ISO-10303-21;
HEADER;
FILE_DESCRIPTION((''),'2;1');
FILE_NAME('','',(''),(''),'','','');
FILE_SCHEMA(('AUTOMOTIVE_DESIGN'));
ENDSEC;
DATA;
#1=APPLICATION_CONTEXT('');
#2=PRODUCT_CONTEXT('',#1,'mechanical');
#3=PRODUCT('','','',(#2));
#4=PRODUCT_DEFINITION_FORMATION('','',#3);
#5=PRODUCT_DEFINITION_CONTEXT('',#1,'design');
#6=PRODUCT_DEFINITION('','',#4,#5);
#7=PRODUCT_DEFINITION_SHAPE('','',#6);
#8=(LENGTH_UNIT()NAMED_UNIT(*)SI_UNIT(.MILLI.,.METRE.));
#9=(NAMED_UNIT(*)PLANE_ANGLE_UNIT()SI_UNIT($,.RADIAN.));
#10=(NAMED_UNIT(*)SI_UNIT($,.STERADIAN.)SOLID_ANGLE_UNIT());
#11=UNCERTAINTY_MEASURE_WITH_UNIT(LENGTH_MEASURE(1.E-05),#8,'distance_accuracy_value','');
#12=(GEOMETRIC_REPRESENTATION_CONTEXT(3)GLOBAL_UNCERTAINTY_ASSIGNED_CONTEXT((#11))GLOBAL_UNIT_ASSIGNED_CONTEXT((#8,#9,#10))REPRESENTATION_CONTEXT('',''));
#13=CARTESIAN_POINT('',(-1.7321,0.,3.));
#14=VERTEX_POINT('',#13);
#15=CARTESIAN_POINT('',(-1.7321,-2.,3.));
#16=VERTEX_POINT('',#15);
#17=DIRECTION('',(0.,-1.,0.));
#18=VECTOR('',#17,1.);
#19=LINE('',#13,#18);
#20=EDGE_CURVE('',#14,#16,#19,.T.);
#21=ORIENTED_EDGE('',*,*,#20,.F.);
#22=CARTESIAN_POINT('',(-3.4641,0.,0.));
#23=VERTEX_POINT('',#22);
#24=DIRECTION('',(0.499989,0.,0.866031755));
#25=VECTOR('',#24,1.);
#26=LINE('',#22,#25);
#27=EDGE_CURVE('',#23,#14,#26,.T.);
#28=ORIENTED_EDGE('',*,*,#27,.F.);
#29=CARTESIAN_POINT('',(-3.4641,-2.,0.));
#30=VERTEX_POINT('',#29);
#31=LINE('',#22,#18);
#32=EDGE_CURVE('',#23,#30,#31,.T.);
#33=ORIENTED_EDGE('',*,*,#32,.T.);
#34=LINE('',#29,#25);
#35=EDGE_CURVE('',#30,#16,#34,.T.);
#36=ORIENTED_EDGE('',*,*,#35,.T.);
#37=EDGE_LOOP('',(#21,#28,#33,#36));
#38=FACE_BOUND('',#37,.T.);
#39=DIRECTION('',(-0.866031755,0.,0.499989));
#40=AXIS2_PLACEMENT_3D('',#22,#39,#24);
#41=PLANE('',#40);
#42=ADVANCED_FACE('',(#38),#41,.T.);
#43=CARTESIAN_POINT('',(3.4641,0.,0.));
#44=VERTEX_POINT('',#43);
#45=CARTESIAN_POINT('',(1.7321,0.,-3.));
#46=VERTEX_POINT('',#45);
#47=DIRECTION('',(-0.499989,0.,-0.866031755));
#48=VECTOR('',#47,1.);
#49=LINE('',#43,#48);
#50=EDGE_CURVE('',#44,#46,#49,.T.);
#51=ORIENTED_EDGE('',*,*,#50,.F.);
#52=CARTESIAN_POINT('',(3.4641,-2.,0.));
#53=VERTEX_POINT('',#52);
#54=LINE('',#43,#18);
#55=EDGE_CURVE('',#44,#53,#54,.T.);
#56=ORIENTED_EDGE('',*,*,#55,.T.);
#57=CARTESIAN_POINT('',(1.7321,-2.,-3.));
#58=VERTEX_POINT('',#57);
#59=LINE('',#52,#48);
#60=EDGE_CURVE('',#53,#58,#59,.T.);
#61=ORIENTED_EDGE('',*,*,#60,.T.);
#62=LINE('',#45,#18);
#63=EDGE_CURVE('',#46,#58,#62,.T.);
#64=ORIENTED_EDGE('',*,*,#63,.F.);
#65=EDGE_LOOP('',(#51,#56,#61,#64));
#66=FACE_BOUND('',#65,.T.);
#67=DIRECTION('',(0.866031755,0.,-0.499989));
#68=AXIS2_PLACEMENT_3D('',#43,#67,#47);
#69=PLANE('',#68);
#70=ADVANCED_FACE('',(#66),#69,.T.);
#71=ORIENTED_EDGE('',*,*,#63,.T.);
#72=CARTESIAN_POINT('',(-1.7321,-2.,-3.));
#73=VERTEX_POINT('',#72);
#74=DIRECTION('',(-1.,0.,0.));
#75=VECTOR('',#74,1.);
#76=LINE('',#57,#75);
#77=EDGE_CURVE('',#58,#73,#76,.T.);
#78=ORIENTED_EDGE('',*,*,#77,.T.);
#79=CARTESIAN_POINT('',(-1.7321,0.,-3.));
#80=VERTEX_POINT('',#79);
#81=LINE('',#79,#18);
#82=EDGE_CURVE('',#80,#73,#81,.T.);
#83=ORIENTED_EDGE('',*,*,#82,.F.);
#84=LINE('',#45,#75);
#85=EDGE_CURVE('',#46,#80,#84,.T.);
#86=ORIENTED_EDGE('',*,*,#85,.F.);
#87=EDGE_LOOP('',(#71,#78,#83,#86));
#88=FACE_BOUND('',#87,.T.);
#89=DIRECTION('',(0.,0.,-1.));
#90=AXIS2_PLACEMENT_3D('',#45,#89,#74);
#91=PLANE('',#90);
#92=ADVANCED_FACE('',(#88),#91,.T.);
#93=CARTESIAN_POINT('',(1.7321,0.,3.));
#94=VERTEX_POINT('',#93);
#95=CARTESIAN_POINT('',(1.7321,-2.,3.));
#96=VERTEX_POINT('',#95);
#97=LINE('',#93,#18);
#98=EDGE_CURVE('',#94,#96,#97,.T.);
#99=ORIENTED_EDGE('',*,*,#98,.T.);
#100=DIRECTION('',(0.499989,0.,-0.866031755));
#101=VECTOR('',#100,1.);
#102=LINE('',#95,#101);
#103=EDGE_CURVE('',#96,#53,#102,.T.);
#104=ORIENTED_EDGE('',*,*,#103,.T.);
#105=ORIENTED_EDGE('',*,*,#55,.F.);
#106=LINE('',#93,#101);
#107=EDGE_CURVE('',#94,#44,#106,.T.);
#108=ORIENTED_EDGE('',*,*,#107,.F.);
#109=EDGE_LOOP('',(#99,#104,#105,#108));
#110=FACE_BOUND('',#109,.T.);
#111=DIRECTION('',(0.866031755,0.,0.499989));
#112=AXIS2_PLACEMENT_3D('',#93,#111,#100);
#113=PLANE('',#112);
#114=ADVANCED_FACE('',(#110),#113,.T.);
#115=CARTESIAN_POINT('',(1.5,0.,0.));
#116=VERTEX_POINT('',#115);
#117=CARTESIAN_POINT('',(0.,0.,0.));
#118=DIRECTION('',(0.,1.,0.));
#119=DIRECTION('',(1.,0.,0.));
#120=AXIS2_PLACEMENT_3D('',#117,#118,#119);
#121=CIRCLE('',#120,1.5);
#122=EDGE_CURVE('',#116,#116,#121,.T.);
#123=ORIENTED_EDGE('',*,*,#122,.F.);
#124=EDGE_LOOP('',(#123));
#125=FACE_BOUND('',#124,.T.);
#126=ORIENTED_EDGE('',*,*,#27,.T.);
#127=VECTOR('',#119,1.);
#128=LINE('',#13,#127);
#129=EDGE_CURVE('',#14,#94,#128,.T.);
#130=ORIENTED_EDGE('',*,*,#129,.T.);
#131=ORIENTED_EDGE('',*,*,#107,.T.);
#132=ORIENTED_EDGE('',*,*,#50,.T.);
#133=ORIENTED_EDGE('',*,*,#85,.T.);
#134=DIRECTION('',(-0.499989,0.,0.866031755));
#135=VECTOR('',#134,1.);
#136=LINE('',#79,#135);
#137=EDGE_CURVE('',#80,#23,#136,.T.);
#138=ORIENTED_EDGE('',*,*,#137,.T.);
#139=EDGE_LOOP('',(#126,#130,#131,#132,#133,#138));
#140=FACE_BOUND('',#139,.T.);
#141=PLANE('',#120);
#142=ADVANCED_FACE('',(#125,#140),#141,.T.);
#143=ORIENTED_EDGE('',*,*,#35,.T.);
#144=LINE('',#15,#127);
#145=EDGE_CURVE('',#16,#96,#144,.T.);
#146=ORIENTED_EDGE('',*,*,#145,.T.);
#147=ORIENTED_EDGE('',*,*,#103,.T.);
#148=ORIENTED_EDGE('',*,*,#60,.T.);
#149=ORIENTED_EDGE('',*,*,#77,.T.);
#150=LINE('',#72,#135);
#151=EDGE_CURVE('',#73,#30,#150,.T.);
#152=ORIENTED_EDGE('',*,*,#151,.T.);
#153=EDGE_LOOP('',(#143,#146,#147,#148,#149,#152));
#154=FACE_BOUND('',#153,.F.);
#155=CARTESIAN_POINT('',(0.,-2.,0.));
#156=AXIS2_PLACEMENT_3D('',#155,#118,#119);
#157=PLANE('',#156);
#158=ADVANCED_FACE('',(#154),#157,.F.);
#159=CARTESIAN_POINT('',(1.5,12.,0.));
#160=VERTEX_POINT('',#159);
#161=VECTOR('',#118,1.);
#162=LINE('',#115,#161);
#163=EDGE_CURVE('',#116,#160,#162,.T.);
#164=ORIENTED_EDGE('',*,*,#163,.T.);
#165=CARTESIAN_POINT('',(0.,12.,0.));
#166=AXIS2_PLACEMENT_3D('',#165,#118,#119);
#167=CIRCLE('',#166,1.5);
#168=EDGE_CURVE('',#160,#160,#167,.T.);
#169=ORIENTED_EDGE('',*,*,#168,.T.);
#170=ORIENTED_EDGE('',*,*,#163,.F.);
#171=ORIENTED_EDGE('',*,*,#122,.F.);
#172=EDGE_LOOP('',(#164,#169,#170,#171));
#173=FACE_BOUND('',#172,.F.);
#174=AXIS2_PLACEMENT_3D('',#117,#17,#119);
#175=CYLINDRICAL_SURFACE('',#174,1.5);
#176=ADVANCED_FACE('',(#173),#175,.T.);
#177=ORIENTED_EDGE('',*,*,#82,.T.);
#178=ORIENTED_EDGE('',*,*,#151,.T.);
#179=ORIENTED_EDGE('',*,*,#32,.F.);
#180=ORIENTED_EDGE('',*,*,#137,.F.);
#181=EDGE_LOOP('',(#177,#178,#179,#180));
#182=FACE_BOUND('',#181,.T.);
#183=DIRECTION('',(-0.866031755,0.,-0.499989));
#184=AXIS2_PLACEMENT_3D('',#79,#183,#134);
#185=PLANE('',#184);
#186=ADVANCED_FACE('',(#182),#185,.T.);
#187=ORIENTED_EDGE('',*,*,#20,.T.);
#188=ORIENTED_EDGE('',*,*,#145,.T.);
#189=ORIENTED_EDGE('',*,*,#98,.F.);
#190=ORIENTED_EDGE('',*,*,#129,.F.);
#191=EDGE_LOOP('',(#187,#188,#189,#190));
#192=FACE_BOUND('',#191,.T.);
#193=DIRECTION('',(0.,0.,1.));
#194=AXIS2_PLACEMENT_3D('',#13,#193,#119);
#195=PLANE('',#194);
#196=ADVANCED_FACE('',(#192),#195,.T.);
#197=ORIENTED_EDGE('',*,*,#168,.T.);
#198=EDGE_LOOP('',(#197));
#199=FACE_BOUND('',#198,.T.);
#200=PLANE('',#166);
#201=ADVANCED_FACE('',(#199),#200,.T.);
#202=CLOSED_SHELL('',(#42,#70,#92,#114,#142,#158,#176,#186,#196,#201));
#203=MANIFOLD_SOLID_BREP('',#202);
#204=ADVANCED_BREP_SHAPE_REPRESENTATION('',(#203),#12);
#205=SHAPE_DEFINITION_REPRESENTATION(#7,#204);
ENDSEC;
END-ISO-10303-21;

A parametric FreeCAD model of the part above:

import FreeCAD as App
import Part
import Sketcher

V = App.Vector
Q = App.Units.Quantity


def add_polygon(sketch, points):
    """Adds a closed chain of lines whose ends are joined by coincident constraints."""
    first, n = sketch.GeometryCount, len(points)
    for a, b in zip(points, points[1:] + points[:1]):
        sketch.addGeometry(Part.LineSegment(App.Vector(*a, 0), App.Vector(*b, 0)), False)
    for i in range(n):
        sketch.addConstraint(Sketcher.Constraint("Coincident", first + i, 2, first + (i + 1) % n, 1))

doc = App.newDocument("Part")
body = doc.addObject("PartDesign::Body", "Body")

# Sketch on XZ plane
sketch1 = doc.addObject("Sketcher::SketchObject", "Sketch")
body.addObject(sketch1)
sketch1.AttachmentSupport = (doc.XZ_Plane, [""])
sketch1.MapMode = "FlatFace"
sketch1.addGeometry(Part.Circle(V(0, 0, 0), V(0, 0, 1), 1.5), False)
sketch1.addConstraint([
    Sketcher.Constraint("Coincident", 0, 3, -1, 1),
    Sketcher.Constraint("Diameter", 0, 3.0),
])
pad1 = doc.addObject("PartDesign::Pad", "Pad")
body.addObject(pad1)
pad1.Profile = sketch1
pad1.Length = 12
pad1.Reversed = True

# Sketch on XZ plane
sketch2 = doc.addObject("Sketcher::SketchObject", "Sketch001")
body.addObject(sketch2)
sketch2.AttachmentSupport = (doc.XZ_Plane, [""])
sketch2.MapMode = "FlatFace"
add_polygon(sketch2, [(1.7321, -3), (-1.7321, -3), (-3.4641, 0), (-1.7321, 3), (1.7321, 3), (3.4641, 0)])  # lines 0-5
sketch2.addConstraint([
    Sketcher.Constraint("Horizontal", 0),
    Sketcher.Constraint("Horizontal", 3),
    Sketcher.Constraint("Symmetric", 0, 2, 3, 2, -1, 1),
    Sketcher.Constraint("Symmetric", 1, 2, 4, 2, -1, 1),
    Sketcher.Constraint("PointOnObject", 1, 2, -1),
    Sketcher.Constraint("Parallel", 2, 5),
    Sketcher.Constraint("Vertical", 0, 2, 2, 2),
    Sketcher.Constraint("DistanceY", 0, 2, -1, 1, 3.0),
    Sketcher.Constraint("Angle", 1, Q("119.9993 deg")),
    Sketcher.Constraint("DistanceX", 0, 2, 0, 1, 3.4642),
])
pad2 = doc.addObject("PartDesign::Pad", "Pad001")
body.addObject(pad2)
pad2.Profile = sketch2
pad2.Length = 2

doc.recompute()
